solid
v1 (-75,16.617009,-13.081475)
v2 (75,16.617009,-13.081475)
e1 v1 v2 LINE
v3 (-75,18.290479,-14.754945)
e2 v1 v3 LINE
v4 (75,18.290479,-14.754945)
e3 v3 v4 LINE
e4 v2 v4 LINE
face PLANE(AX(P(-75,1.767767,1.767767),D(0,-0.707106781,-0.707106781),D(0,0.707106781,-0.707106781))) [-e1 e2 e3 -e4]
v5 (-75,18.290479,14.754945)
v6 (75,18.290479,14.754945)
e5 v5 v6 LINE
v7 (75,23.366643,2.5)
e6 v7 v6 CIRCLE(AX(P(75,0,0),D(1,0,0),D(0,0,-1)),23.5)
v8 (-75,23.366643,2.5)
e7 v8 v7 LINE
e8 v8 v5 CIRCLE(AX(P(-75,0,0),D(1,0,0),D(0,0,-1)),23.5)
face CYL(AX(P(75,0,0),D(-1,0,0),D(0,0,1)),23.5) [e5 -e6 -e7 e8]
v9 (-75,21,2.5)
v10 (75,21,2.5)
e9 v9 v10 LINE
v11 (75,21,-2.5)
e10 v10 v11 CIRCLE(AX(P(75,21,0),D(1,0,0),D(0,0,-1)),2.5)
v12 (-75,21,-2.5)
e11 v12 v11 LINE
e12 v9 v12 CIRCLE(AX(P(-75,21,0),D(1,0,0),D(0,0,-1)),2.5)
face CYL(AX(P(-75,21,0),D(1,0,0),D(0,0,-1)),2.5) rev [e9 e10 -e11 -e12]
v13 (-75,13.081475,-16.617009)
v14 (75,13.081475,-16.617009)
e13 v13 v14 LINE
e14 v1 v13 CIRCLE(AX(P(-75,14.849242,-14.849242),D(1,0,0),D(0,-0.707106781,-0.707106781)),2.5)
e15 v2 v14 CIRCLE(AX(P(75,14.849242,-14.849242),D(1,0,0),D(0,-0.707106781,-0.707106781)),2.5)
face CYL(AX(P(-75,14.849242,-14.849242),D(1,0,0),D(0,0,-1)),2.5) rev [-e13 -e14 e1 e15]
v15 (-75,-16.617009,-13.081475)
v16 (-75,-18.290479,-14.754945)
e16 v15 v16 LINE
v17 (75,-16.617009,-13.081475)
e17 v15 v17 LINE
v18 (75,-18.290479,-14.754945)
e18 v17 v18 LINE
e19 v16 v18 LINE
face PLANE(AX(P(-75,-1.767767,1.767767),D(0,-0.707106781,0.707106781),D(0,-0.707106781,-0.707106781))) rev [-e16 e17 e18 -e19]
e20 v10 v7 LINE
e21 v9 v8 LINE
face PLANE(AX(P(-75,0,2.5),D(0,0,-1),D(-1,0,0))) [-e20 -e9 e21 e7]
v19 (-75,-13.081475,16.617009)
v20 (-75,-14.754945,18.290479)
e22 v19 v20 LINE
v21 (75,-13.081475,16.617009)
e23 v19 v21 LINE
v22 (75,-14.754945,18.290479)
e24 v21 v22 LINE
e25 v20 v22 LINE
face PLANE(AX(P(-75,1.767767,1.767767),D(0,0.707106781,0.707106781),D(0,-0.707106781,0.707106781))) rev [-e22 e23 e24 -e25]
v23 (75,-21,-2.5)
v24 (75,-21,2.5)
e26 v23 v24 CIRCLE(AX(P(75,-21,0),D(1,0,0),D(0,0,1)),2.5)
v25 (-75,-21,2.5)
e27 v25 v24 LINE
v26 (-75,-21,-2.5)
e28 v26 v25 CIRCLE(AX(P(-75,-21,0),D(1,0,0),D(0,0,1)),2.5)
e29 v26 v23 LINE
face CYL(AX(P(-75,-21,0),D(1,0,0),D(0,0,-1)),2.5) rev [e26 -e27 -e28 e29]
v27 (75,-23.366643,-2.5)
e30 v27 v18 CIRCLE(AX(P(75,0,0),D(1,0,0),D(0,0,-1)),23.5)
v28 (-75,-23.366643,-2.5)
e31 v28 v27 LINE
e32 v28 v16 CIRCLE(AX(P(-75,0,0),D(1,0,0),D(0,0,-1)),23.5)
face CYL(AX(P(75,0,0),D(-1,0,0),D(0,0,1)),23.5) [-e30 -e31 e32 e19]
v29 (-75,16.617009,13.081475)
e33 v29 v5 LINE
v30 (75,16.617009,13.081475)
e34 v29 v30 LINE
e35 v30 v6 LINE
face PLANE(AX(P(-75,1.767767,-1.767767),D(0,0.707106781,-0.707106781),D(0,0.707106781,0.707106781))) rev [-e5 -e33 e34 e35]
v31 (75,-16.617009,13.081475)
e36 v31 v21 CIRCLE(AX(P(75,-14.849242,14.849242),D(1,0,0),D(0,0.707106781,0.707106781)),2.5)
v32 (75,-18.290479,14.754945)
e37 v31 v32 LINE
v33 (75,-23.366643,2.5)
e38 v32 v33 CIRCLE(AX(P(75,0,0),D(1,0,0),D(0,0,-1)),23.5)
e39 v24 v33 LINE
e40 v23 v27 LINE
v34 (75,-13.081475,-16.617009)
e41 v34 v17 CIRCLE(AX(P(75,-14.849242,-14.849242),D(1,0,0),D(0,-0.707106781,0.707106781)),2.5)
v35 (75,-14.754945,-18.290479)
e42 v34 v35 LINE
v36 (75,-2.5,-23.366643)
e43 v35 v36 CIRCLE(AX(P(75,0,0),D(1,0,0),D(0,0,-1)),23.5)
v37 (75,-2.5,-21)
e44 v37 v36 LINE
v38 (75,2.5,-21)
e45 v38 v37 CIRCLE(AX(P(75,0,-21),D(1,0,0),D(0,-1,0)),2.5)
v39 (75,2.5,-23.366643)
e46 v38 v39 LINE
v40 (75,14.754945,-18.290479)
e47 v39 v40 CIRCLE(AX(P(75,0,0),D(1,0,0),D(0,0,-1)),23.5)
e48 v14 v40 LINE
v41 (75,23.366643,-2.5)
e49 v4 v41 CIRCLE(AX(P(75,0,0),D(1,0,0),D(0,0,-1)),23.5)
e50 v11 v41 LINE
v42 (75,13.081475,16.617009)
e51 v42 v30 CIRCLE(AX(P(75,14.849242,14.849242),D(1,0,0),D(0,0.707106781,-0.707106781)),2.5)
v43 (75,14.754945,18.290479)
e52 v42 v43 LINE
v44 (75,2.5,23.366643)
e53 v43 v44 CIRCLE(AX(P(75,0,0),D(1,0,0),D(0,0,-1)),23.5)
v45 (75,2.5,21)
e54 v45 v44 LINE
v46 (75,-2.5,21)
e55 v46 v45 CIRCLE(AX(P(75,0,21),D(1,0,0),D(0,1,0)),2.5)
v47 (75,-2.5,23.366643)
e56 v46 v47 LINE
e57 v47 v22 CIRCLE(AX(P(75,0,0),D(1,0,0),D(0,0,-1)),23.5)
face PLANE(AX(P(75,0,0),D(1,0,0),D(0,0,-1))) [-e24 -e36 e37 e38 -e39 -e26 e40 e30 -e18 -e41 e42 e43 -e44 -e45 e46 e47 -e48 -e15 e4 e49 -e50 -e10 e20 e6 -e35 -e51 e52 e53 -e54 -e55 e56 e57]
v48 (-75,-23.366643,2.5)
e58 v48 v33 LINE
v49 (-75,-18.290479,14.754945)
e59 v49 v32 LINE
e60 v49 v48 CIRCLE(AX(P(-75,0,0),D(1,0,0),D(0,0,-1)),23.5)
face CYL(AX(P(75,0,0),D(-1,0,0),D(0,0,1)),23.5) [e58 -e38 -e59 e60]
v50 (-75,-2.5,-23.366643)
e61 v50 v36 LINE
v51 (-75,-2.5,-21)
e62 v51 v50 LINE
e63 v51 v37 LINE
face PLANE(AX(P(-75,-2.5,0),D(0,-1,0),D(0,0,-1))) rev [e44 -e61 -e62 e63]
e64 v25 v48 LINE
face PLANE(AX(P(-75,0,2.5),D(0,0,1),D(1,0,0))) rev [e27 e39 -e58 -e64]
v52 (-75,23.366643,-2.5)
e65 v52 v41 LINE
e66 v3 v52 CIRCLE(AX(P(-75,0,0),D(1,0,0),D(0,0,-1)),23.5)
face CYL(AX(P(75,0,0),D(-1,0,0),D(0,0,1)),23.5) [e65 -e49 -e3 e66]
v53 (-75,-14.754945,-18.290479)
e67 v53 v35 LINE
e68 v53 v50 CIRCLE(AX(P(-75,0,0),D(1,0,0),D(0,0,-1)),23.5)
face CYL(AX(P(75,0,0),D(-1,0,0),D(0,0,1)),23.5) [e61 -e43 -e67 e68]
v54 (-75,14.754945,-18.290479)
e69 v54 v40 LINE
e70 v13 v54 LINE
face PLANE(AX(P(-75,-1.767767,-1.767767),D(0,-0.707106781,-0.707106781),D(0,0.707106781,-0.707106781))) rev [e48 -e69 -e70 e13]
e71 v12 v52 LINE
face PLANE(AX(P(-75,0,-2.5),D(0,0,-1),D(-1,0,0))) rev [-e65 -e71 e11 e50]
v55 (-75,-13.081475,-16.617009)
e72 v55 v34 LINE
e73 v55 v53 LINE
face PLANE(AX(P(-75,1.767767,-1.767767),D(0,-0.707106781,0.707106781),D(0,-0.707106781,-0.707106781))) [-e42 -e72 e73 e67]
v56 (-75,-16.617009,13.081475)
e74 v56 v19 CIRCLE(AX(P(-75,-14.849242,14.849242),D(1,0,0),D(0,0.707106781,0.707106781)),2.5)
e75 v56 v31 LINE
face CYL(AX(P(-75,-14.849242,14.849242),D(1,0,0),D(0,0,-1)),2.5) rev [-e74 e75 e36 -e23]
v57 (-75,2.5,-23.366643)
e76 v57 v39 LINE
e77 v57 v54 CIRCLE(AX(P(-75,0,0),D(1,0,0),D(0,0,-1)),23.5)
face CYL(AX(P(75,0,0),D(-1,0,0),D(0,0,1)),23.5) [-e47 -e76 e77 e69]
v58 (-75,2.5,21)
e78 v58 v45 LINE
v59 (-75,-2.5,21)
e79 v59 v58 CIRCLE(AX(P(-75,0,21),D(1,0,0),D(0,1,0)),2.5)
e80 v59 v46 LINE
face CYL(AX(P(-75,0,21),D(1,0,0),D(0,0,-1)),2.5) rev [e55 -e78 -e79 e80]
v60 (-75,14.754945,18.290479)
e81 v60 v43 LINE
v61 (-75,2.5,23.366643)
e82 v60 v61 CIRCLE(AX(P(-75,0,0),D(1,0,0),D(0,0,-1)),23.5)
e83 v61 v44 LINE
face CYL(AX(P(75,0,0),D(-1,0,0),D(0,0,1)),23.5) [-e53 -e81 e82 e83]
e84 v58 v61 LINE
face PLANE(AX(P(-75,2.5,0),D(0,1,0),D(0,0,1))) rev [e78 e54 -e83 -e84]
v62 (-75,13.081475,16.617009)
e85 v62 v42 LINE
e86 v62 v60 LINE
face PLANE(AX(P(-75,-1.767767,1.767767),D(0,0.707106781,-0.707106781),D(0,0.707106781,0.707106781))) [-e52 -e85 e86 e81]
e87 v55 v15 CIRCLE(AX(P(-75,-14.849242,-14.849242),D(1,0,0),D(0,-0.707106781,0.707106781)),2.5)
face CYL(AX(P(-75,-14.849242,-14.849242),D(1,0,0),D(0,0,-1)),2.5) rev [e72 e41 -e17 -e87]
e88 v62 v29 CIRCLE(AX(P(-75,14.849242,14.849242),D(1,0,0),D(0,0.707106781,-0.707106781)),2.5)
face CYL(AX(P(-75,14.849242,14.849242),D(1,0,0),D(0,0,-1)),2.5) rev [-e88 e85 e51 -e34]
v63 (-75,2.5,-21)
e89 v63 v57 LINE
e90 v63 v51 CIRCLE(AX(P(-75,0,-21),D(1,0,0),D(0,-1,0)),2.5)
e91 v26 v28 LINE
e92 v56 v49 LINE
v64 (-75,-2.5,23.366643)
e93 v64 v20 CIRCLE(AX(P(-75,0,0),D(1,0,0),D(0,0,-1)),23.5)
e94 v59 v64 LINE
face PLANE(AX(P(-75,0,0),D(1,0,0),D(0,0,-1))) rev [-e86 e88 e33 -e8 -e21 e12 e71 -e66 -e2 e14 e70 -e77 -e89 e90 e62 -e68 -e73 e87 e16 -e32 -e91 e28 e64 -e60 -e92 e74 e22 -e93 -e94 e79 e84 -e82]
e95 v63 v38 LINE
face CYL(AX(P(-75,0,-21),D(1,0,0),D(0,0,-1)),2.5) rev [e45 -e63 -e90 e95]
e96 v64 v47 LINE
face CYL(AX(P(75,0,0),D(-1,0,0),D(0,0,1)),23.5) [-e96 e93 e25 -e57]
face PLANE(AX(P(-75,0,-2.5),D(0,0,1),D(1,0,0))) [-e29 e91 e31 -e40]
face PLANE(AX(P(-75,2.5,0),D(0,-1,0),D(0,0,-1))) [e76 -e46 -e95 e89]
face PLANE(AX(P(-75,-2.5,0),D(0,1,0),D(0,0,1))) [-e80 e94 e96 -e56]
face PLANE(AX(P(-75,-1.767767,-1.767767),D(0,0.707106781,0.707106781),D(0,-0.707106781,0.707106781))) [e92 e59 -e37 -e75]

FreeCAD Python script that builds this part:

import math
import FreeCAD as App
import Part
import Sketcher

V = App.Vector

doc = App.newDocument("Part")
body = doc.addObject("PartDesign::Body", "Body")

sketch1 = body.newObject("Sketcher::SketchObject", "Sketch")
sketch1.AttachmentSupport = (doc.getObject("YZ_Plane"), [""])
sketch1.MapMode = "FlatFace"
sketch1.addGeometry(Part.Circle(V(0, 0, 0), V(0, 0, 1), 23.5), False)
sketch1.addConstraint([
    Sketcher.Constraint("Coincident", 0, 3, -1, 1),
    Sketcher.Constraint("Diameter", 0, 47.0),
])
pad1 = body.newObject("PartDesign::Pad", "Pad")
pad1.Profile = sketch1
pad1.Length = 150
pad1.Midplane = True

sketch2 = body.newObject("Sketcher::SketchObject", "Sketch001")
sketch2.AttachmentSupport = (doc.getObject("YZ_Plane"), [""])
sketch2.MapMode = "FlatFace"
sketch2.AttachmentOffset = App.Placement(V(0, 0, 75), App.Rotation())
sketch2.addGeometry([
    Part.ArcOfCircle(Part.Circle(V(21, 0, 0), V(0, 0, 1), 2.5), math.radians(90), math.radians(270)),
    Part.LineSegment(V(21, -2.5, 0), V(23.366643, -2.5, 0)),
    Part.ArcOfCircle(Part.Circle(V(0, 0, 0), V(0, 0, 1), 23.5), math.radians(-6.106852), math.radians(0)),
    Part.ArcOfCircle(Part.Circle(V(0, 0, 0), V(0, 0, 1), 23.5), math.radians(0), math.radians(6.106852)),
    Part.LineSegment(V(23.366643, 2.5, 0), V(21, 2.5, 0)),
], False)
sketch2.addConstraint([
    Sketcher.Constraint("Tangent", 0, 2, 1, 1),
    Sketcher.Constraint("Coincident", 1, 2, 2, 1),
    Sketcher.Constraint("Tangent", 2, 2, 3, 1),
    Sketcher.Constraint("Coincident", 3, 2, 4, 1),
    Sketcher.Constraint("Tangent", 4, 2, 0, 1),
    Sketcher.Constraint("Horizontal", 1),
    Sketcher.Constraint("Horizontal", 4),
    Sketcher.Constraint("Coincident", 2, 3, -1, 1),
    Sketcher.Constraint("Equal", 2, 3),
    Sketcher.Constraint("PointOnObject", 0, 3, -1),
    Sketcher.Constraint("PointOnObject", 2, 2, -1),
    Sketcher.Constraint("Radius", 0, 2.5),
    Sketcher.Constraint("Radius", 2, 23.5),
    Sketcher.Constraint("DistanceX", -1, 1, 0, 3, 21.0),
])
pocket1 = body.newObject("PartDesign::Pocket", "Pocket")
pocket1.Profile = sketch2
pocket1.Type = "ThroughAll"
doc.recompute()

polarpattern = body.newObject("PartDesign::PolarPattern", "PolarPattern")
polarpattern.Originals = [pocket1]
polarpattern.Axis = (doc.getObject("X_Axis"), [""])
polarpattern.Angle = 360
polarpattern.Occurrences = 8
body.Tip = polarpattern

doc.recompute()
